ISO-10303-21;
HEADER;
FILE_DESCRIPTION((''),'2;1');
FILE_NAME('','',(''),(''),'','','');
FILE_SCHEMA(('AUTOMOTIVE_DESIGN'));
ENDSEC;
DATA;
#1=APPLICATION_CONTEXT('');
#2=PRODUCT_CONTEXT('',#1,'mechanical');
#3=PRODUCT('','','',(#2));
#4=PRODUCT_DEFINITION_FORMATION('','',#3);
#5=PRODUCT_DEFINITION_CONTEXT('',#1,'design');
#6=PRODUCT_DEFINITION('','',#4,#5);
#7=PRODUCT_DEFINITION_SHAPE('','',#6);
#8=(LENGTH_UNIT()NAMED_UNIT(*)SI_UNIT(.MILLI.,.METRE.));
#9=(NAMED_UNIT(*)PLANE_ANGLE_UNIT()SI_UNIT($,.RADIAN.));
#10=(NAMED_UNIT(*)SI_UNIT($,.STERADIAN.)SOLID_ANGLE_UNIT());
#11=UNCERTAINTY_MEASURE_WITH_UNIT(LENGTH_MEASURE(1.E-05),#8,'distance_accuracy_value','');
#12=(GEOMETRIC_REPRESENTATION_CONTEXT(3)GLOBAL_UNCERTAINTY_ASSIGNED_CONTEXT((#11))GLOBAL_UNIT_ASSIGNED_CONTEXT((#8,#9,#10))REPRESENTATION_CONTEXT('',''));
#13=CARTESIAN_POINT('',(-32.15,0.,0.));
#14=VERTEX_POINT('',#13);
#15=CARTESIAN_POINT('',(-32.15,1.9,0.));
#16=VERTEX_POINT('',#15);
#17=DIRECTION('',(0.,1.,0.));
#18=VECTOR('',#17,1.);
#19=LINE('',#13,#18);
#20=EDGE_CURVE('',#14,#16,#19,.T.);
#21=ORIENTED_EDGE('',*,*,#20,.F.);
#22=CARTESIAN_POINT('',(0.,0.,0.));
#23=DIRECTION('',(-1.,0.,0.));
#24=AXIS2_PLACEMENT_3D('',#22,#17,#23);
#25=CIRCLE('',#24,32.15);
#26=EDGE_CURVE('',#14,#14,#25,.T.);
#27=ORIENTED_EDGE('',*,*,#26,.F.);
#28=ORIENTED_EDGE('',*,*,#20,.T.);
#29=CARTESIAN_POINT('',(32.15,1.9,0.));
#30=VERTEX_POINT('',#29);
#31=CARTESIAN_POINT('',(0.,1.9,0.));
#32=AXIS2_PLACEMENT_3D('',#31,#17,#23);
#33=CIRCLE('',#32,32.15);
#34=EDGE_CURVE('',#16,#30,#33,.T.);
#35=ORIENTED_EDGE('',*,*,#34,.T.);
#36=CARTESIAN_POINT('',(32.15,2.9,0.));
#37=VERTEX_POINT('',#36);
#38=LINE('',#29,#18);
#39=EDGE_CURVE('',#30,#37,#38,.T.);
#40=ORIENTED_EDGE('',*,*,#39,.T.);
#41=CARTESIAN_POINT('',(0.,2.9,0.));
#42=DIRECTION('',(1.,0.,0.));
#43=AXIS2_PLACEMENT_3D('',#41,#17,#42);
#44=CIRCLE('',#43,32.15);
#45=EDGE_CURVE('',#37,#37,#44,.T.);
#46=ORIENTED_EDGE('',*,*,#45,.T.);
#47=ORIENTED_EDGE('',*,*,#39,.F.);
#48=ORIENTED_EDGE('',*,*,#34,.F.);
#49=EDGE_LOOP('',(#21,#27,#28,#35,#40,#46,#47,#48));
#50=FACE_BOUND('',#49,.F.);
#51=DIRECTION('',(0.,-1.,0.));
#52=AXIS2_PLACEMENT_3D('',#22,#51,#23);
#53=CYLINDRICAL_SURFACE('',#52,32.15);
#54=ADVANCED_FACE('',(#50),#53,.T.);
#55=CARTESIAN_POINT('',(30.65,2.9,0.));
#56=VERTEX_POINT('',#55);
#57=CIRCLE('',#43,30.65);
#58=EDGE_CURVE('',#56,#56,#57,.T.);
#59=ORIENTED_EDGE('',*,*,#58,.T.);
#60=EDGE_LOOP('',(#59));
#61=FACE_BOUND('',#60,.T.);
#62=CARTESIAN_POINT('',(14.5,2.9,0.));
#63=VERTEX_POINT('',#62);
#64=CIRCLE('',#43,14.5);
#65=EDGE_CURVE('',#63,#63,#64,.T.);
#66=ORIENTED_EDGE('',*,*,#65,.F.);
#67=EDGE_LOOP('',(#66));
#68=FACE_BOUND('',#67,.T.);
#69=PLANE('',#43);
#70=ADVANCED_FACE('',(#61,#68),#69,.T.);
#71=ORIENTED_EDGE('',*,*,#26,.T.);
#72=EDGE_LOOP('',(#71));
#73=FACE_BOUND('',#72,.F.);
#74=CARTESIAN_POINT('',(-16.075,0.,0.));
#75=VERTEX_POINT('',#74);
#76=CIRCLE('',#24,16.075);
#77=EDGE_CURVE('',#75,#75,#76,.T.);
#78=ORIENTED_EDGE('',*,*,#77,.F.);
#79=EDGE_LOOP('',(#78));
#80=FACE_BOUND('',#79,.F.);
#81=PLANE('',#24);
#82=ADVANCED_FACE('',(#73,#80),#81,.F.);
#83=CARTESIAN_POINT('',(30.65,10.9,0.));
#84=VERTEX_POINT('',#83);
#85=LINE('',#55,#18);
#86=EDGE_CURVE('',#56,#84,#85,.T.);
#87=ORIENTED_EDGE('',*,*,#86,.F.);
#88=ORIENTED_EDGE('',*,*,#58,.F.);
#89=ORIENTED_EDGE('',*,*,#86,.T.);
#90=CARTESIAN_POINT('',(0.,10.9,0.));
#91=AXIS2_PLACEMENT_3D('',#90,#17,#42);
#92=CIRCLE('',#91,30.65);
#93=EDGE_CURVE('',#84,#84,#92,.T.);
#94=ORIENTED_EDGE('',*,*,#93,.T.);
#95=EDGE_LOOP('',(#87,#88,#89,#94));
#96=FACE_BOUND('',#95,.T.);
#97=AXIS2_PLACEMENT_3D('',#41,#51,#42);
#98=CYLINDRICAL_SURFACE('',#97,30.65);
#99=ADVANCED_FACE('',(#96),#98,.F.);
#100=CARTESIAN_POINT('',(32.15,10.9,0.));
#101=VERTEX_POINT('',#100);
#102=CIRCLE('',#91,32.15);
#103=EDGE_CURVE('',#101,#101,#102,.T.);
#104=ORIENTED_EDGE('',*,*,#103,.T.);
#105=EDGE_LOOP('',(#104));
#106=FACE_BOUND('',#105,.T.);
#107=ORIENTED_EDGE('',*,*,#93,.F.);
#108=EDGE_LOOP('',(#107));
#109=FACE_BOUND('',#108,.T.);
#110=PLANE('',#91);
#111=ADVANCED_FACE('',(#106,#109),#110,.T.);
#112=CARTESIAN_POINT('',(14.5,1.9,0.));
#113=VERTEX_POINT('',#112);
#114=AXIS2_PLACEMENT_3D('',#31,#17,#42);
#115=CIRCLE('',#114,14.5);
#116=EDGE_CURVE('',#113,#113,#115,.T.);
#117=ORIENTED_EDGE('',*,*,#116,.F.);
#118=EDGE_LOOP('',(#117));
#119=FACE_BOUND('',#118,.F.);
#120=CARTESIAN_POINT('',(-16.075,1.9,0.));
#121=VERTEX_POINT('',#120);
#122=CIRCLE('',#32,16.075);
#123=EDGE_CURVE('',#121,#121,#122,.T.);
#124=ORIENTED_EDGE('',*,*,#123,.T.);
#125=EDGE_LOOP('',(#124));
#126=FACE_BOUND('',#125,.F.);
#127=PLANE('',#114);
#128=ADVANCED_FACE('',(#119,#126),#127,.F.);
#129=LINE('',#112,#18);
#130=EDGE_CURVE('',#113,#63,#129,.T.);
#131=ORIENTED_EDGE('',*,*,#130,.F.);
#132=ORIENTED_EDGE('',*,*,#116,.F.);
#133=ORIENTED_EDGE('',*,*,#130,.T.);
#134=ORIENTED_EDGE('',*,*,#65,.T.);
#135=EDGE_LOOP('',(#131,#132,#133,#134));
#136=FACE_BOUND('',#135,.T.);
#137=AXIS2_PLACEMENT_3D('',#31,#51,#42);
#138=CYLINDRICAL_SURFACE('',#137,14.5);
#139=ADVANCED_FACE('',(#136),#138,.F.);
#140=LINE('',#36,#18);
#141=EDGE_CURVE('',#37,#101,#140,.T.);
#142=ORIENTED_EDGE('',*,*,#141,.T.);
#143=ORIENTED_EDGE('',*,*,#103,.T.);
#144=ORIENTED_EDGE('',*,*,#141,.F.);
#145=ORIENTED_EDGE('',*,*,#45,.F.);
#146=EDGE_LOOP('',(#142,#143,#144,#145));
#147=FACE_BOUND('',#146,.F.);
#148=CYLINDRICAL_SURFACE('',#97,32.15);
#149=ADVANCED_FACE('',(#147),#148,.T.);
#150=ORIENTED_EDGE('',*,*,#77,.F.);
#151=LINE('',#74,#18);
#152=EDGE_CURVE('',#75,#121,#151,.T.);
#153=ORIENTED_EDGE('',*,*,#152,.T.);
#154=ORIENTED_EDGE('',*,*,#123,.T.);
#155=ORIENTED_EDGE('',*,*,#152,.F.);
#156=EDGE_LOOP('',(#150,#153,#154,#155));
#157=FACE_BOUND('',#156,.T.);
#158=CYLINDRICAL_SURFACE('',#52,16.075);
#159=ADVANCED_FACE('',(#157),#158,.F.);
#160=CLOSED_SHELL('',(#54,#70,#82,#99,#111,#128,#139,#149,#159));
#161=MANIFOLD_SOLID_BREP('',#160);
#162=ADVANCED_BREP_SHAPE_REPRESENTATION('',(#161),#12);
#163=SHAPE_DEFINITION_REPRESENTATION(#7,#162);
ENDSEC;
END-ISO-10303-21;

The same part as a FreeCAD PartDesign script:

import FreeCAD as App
import Part
import Sketcher
Q = App.Units.Quantity

doc = App.newDocument("Part")
body = doc.addObject("PartDesign::Body", "Body")

sketch1 = doc.addObject("Sketcher::SketchObject", "Sketch")
body.addObject(sketch1)
sketch1.AttachmentSupport = (doc.XZ_Plane, [""])
sketch1.MapMode = "FlatFace"
sketch1.addGeometry([
    Part.Circle(App.Vector(0, 0, 0), App.Vector(0, 0, 1), 32),
    Part.Circle(App.Vector(0, 0, 0), App.Vector(0, 0, 1), 16),
], False)
sketch1.addConstraint([
    Sketcher.Constraint("Coincident", 0, 3, -1, 1),
    Sketcher.Constraint("Coincident", 1, 3, -1, 1),
    Sketcher.Constraint("Diameter", 0, Q("64.3 mm")),
    Sketcher.Constraint("Diameter", 1, Q("32.15 mm")),
])
pad1 = doc.addObject("PartDesign::Pad", "Pad")
body.addObject(pad1)
pad1.Profile = sketch1
pad1.Length = 1.9
pad1.Reversed = True

sketch2 = doc.addObject("Sketcher::SketchObject", "Sketch001")
body.addObject(sketch2)
sketch2.AttachmentSupport = (doc.XZ_Plane, [""])
sketch2.MapMode = "FlatFace"
sketch2.AttachmentOffset = App.Placement(App.Vector(0, 0, -1.9), App.Rotation())
sketch2.addGeometry([
    Part.Circle(App.Vector(0, 0, 0), App.Vector(0, 0, 1), 32),
    Part.Circle(App.Vector(0, 0, 0), App.Vector(0, 0, 1), 14),
], False)
sketch2.addConstraint([
    Sketcher.Constraint("Coincident", 0, 3, -1, 1),
    Sketcher.Constraint("Coincident", 1, 3, -1, 1),
    Sketcher.Constraint("Diameter", 1, Q("29 mm")),
    Sketcher.Constraint("Diameter", 0, Q("64.3 mm")),
])
pad2 = doc.addObject("PartDesign::Pad", "Pad001")
body.addObject(pad2)
pad2.Profile = sketch2
pad2.Length = 1
pad2.Reversed = True

sketch3 = doc.addObject("Sketcher::SketchObject", "Sketch002")
body.addObject(sketch3)
sketch3.AttachmentSupport = (doc.XZ_Plane, [""])
sketch3.MapMode = "FlatFace"
sketch3.AttachmentOffset = App.Placement(App.Vector(0, 0, -2.9), App.Rotation())
sketch3.addGeometry([
    Part.Circle(App.Vector(0, 0, 0), App.Vector(0, 0, 1), 32),
    Part.Circle(App.Vector(0, 0, 0), App.Vector(0, 0, 1), 31),
], False)
sketch3.addConstraint([
    Sketcher.Constraint("Coincident", 0, 3, -1, 1),
    Sketcher.Constraint("Coincident", 1, 3, -1, 1),
    Sketcher.Constraint("Diameter", 0, Q("64.3 mm")),
    Sketcher.Constraint("Diameter", 1, Q("61.3 mm")),
])
pad3 = doc.addObject("PartDesign::Pad", "Pad002")
body.addObject(pad3)
pad3.Profile = sketch3
pad3.Length = 8
pad3.Reversed = True

doc.recompute()
